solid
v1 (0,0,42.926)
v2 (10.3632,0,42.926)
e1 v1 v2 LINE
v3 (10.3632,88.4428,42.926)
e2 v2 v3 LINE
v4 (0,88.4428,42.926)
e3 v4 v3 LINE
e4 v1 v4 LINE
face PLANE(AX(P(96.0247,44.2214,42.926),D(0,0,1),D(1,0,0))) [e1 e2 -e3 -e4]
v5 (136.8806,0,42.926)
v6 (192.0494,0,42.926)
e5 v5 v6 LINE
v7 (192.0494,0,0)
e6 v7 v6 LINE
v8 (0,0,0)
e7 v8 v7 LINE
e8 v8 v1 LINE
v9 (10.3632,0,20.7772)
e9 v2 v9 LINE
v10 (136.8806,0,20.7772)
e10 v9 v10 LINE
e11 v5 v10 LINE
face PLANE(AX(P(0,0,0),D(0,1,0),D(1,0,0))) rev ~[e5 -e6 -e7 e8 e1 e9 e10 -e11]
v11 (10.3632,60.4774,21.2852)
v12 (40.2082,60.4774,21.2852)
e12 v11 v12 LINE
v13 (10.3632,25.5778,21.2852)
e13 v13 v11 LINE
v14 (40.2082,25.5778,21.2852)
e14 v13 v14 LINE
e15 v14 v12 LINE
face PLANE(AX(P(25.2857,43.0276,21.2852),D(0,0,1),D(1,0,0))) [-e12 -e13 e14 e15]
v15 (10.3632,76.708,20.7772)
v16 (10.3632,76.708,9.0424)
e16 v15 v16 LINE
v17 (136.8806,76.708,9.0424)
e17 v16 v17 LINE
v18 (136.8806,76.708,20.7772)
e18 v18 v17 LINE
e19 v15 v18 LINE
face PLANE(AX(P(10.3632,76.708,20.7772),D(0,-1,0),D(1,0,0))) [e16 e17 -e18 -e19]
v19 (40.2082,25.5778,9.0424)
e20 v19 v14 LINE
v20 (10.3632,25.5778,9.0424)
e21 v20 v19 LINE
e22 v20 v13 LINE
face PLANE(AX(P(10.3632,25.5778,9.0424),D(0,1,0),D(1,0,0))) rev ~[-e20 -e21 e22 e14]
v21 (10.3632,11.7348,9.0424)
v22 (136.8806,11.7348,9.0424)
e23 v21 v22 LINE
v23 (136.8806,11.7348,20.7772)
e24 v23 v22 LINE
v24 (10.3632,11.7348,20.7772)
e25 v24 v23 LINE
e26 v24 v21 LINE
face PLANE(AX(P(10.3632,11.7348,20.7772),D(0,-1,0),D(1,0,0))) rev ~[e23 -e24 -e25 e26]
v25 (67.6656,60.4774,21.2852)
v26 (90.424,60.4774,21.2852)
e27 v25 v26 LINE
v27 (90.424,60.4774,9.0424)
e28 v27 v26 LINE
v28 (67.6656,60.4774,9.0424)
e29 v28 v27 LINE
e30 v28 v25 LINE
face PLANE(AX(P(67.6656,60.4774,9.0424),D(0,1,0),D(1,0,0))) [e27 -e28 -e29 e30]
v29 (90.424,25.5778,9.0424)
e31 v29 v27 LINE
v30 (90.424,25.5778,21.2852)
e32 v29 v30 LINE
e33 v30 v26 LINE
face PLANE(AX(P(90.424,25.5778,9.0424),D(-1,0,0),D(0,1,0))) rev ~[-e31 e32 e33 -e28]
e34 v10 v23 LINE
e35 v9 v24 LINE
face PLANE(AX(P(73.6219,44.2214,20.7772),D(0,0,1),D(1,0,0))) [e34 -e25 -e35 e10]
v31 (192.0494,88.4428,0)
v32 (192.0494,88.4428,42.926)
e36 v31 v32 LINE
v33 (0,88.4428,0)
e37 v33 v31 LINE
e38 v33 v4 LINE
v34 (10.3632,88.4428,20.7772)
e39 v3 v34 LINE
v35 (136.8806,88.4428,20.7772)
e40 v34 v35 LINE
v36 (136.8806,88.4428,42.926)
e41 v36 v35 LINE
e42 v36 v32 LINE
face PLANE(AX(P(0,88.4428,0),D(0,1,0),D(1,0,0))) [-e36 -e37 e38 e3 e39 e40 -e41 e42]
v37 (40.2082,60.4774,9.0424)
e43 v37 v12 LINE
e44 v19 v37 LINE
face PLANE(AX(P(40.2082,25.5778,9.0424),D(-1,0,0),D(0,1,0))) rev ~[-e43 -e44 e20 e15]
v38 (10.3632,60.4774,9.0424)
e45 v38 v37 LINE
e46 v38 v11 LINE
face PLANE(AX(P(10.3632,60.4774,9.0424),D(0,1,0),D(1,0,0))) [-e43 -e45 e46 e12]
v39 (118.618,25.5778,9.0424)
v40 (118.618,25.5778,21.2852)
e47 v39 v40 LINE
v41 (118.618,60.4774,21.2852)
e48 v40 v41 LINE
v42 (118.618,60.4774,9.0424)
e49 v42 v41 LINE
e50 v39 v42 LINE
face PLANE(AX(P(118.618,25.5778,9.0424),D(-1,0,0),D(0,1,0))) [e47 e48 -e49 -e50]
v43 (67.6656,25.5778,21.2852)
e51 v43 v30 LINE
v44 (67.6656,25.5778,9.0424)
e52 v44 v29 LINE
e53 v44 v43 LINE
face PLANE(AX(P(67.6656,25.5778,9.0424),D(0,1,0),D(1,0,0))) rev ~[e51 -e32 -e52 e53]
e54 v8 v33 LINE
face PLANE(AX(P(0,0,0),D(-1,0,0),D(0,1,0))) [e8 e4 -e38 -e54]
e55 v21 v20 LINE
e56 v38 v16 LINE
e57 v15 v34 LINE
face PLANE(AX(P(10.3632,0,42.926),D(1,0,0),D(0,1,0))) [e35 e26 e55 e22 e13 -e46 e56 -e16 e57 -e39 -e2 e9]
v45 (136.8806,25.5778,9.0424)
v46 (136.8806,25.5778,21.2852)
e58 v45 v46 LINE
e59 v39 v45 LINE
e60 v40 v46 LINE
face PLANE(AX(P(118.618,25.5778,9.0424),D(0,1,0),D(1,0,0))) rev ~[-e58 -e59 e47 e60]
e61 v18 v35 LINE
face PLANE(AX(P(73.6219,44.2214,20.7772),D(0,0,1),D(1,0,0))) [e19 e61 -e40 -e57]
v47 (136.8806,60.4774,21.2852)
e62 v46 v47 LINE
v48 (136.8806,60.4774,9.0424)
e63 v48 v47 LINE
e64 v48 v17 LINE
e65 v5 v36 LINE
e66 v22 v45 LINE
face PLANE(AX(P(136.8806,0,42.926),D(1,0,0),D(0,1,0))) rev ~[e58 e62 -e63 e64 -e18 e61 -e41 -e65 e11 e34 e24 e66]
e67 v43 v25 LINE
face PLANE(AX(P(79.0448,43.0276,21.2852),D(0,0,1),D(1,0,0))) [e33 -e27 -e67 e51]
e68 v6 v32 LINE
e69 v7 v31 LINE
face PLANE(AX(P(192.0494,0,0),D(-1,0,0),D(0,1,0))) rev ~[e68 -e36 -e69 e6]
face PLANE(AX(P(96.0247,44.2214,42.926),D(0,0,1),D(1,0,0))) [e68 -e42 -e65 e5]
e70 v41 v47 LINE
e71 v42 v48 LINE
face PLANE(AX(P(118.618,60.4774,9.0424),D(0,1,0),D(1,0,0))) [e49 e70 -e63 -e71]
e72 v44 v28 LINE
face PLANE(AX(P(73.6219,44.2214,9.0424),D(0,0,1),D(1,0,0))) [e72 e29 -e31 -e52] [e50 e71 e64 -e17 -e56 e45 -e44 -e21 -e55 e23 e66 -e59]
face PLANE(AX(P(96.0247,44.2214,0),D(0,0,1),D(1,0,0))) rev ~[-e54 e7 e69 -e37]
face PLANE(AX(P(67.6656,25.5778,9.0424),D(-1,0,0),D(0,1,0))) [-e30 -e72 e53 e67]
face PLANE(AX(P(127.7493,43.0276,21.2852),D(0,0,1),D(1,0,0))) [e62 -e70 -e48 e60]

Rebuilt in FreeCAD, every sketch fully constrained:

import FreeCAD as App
import Part
import Sketcher
from FreeCAD import Vector
Q = App.Units.Quantity

doc = App.newDocument("Part")
params = doc.addObject("Spreadsheet::Sheet", "Params")
for row, (alias, value) in enumerate([
    ("sketch1_width", "7.561 in"),
    ("sketch1_height", "3.482 in"),
    ("pad1_length", "1.69 in"),
    ("sketch2_width", "4.981 in"),
    ("sketch2_height", "3.482 in"),
    ("pocket1_length", "0.872 in"),
    ("sketch3_width", "4.981 in"),
    ("sketch3_height", "2.558 in"),
    ("pocket2_length", "0.462 in"),
    ("sketch4_width", "1.175 in"),
    ("sketch4_width2", "0.896 in"),
    ("sketch4_width3", "0.719 in"),
    ("sketch4_height", "1.374 in"),
    ("pad2_length", "0.482 in"),
], start=1):
    params.set(f"A{row}", alias)
    params.set(f"B{row}", "=" + value)
    params.setAlias(f"B{row}", alias)

body = doc.addObject("PartDesign::Body", "Body")

sketch1 = body.newObject("Sketcher::SketchObject", "Sketch")
sketch1.AttachmentSupport = (doc.getObject("XY_Plane"), [""])
sketch1.MapMode = "FlatFace"
sketch1.addGeometry(Part.LineSegment(Vector(0, 88, 0), Vector(0, 0, 0)), False)
sketch1.addGeometry(Part.LineSegment(Vector(0, 0, 0), Vector(192, 0, 0)), False)
sketch1.addGeometry(Part.LineSegment(Vector(192, 0, 0), Vector(192, 88, 0)), False)
sketch1.addGeometry(Part.LineSegment(Vector(192, 88, 0), Vector(0, 88, 0)), False)
sketch1.addConstraint(Sketcher.Constraint("Coincident", 0, 2, 1, 1))
sketch1.addConstraint(Sketcher.Constraint("Coincident", 1, 2, 2, 1))
sketch1.addConstraint(Sketcher.Constraint("Coincident", 2, 2, 3, 1))
sketch1.addConstraint(Sketcher.Constraint("Coincident", 3, 2, 0, 1))
sketch1.addConstraint(Sketcher.Constraint("Vertical", 0))
sketch1.addConstraint(Sketcher.Constraint("Horizontal", 1))
sketch1.addConstraint(Sketcher.Constraint("Vertical", 2))
sketch1.addConstraint(Sketcher.Constraint("Horizontal", 3))
sketch1.addConstraint(Sketcher.Constraint("Coincident", 0, 2, -1, 1))
sketch1.addConstraint(Sketcher.Constraint("DistanceX", 1, 1, 1, 2, Q("7.561 in")))
sketch1.addConstraint(Sketcher.Constraint("DistanceY", 0, 2, 0, 1, Q("3.482 in")))
sketch1.setExpression("Constraints[9]", "Params.sketch1_width")
sketch1.setExpression("Constraints[10]", "Params.sketch1_height")
pad1 = body.newObject("PartDesign::Pad", "Pad")
pad1.Profile = sketch1
pad1.setExpression("Length", "Params.pad1_length")

sketch2 = body.newObject("Sketcher::SketchObject", "Sketch001")
sketch2.AttachmentSupport = (doc.getObject("XY_Plane"), [""])
sketch2.MapMode = "FlatFace"
sketch2.AttachmentOffset = App.Placement(Vector(0, 0, 1.69 * 25.4), App.Rotation())
sketch2.addGeometry(Part.LineSegment(Vector(10, 88, 0), Vector(10, 0, 0)), False)
sketch2.addGeometry(Part.LineSegment(Vector(10, 0, 0), Vector(137, 0, 0)), False)
sketch2.addGeometry(Part.LineSegment(Vector(137, 0, 0), Vector(137, 88, 0)), False)
sketch2.addGeometry(Part.LineSegment(Vector(137, 88, 0), Vector(10, 88, 0)), False)
sketch2.addConstraint(Sketcher.Constraint("Coincident", 0, 2, 1, 1))
sketch2.addConstraint(Sketcher.Constraint("Coincident", 1, 2, 2, 1))
sketch2.addConstraint(Sketcher.Constraint("Coincident", 2, 2, 3, 1))
sketch2.addConstraint(Sketcher.Constraint("Coincident", 3, 2, 0, 1))
sketch2.addConstraint(Sketcher.Constraint("Vertical", 0))
sketch2.addConstraint(Sketcher.Constraint("Horizontal", 1))
sketch2.addConstraint(Sketcher.Constraint("Vertical", 2))
sketch2.addConstraint(Sketcher.Constraint("Horizontal", 3))
sketch2.addConstraint(Sketcher.Constraint("PointOnObject", 0, 2, -1))
sketch2.addConstraint(Sketcher.Constraint("DistanceX", 1, 1, 1, 2, Q("4.981 in")))
sketch2.addConstraint(Sketcher.Constraint("DistanceY", 0, 2, 0, 1, Q("3.482 in")))
sketch2.addConstraint(Sketcher.Constraint("DistanceX", -1, 1, 0, 2, Q("0.408 in")))
sketch2.setExpression("Constraints[9]", "Params.sketch2_width")
sketch2.setExpression("Constraints[10]", "Params.sketch2_height")
pocket1 = body.newObject("PartDesign::Pocket", "Pocket")
pocket1.Profile = sketch2
pocket1.setExpression("Length", "Params.pocket1_length")

sketch3 = body.newObject("Sketcher::SketchObject", "Sketch002")
sketch3.AttachmentSupport = (doc.getObject("XY_Plane"), [""])
sketch3.MapMode = "FlatFace"
sketch3.AttachmentOffset = App.Placement(Vector(0, 0, 0.818 * 25.4), App.Rotation())
sketch3.addGeometry(Part.LineSegment(Vector(10, 77, 0), Vector(10, 12, 0)), False)
sketch3.addGeometry(Part.LineSegment(Vector(10, 12, 0), Vector(137, 12, 0)), False)
sketch3.addGeometry(Part.LineSegment(Vector(137, 12, 0), Vector(137, 77, 0)), False)
sketch3.addGeometry(Part.LineSegment(Vector(137, 77, 0), Vector(10, 77, 0)), False)
sketch3.addConstraint(Sketcher.Constraint("Coincident", 0, 2, 1, 1))
sketch3.addConstraint(Sketcher.Constraint("Coincident", 1, 2, 2, 1))
sketch3.addConstraint(Sketcher.Constraint("Coincident", 2, 2, 3, 1))
sketch3.addConstraint(Sketcher.Constraint("Coincident", 3, 2, 0, 1))
sketch3.addConstraint(Sketcher.Constraint("Vertical", 0))
sketch3.addConstraint(Sketcher.Constraint("Horizontal", 1))
sketch3.addConstraint(Sketcher.Constraint("Vertical", 2))
sketch3.addConstraint(Sketcher.Constraint("Horizontal", 3))
sketch3.addConstraint(Sketcher.Constraint("DistanceX", 1, 1, 1, 2, Q("4.981 in")))
sketch3.addConstraint(Sketcher.Constraint("DistanceY", 0, 2, 0, 1, Q("2.558 in")))
sketch3.addConstraint(Sketcher.Constraint("DistanceY", -1, 1, 2, 2, Q("3.02 in")))
sketch3.addConstraint(Sketcher.Constraint("DistanceX", -1, 1, 0, 2, Q("0.408 in")))
sketch3.setExpression("Constraints[8]", "Params.sketch3_width")
sketch3.setExpression("Constraints[9]", "Params.sketch3_height")
pocket2 = body.newObject("PartDesign::Pocket", "Pocket001")
pocket2.Profile = sketch3
pocket2.setExpression("Length", "Params.pocket2_length")

sketch4 = body.newObject("Sketcher::SketchObject", "Sketch003")
sketch4.AttachmentSupport = (doc.getObject("XY_Plane"), [""])
sketch4.MapMode = "FlatFace"
sketch4.AttachmentOffset = App.Placement(Vector(0, 0, 0.356 * 25.4), App.Rotation())
sketch4.addGeometry(Part.LineSegment(Vector(10, 60, 0), Vector(10, 26, 0)), False)
sketch4.addGeometry(Part.LineSegment(Vector(10, 26, 0), Vector(40, 26, 0)), False)
sketch4.addGeometry(Part.LineSegment(Vector(40, 26, 0), Vector(40, 60, 0)), False)
sketch4.addGeometry(Part.LineSegment(Vector(40, 60, 0), Vector(10, 60, 0)), False)
sketch4.addGeometry(Part.LineSegment(Vector(68, 60, 0), Vector(68, 26, 0)), False)
sketch4.addGeometry(Part.LineSegment(Vector(68, 26, 0), Vector(90, 26, 0)), False)
sketch4.addGeometry(Part.LineSegment(Vector(90, 26, 0), Vector(90, 60, 0)), False)
sketch4.addGeometry(Part.LineSegment(Vector(90, 60, 0), Vector(68, 60, 0)), False)
sketch4.addGeometry(Part.LineSegment(Vector(119, 60, 0), Vector(119, 26, 0)), False)
sketch4.addGeometry(Part.LineSegment(Vector(119, 26, 0), Vector(137, 26, 0)), False)
sketch4.addGeometry(Part.LineSegment(Vector(137, 26, 0), Vector(137, 60, 0)), False)
sketch4.addGeometry(Part.LineSegment(Vector(137, 60, 0), Vector(119, 60, 0)), False)
sketch4.addConstraint(Sketcher.Constraint("Coincident", 0, 2, 1, 1))
sketch4.addConstraint(Sketcher.Constraint("Coincident", 1, 2, 2, 1))
sketch4.addConstraint(Sketcher.Constraint("Coincident", 2, 2, 3, 1))
sketch4.addConstraint(Sketcher.Constraint("Coincident", 3, 2, 0, 1))
sketch4.addConstraint(Sketcher.Constraint("Coincident", 4, 2, 5, 1))
sketch4.addConstraint(Sketcher.Constraint("Coincident", 5, 2, 6, 1))
sketch4.addConstraint(Sketcher.Constraint("Coincident", 6, 2, 7, 1))
sketch4.addConstraint(Sketcher.Constraint("Coincident", 7, 2, 4, 1))
sketch4.addConstraint(Sketcher.Constraint("Coincident", 8, 2, 9, 1))
sketch4.addConstraint(Sketcher.Constraint("Coincident", 9, 2, 10, 1))
sketch4.addConstraint(Sketcher.Constraint("Coincident", 10, 2, 11, 1))
sketch4.addConstraint(Sketcher.Constraint("Coincident", 11, 2, 8, 1))
sketch4.addConstraint(Sketcher.Constraint("Vertical", 0))
sketch4.addConstraint(Sketcher.Constraint("Horizontal", 1))
sketch4.addConstraint(Sketcher.Constraint("Vertical", 2))
sketch4.addConstraint(Sketcher.Constraint("Horizontal", 3))
sketch4.addConstraint(Sketcher.Constraint("Vertical", 4))
sketch4.addConstraint(Sketcher.Constraint("Horizontal", 5))
sketch4.addConstraint(Sketcher.Constraint("Vertical", 6))
sketch4.addConstraint(Sketcher.Constraint("Horizontal", 7))
sketch4.addConstraint(Sketcher.Constraint("Vertical", 8))
sketch4.addConstraint(Sketcher.Constraint("Horizontal", 9))
sketch4.addConstraint(Sketcher.Constraint("Vertical", 10))
sketch4.addConstraint(Sketcher.Constraint("Horizontal", 11))
sketch4.addConstraint(Sketcher.Constraint("Horizontal", 1, 2, 4, 2))
sketch4.addConstraint(Sketcher.Constraint("Horizontal", 3, 2, 6, 2))
sketch4.addConstraint(Sketcher.Constraint("Horizontal", 5, 2, 8, 2))
sketch4.addConstraint(Sketcher.Constraint("Horizontal", 7, 2, 10, 2))
sketch4.addConstraint(Sketcher.Constraint("DistanceX", 1, 1, 1, 2, Q("1.175 in")))
sketch4.addConstraint(Sketcher.Constraint("DistanceX", 5, 1, 5, 2, Q("0.896 in")))
sketch4.addConstraint(Sketcher.Constraint("DistanceX", 9, 1, 9, 2, Q("0.719 in")))
sketch4.addConstraint(Sketcher.Constraint("DistanceY", 0, 2, 0, 1, Q("1.374 in")))
sketch4.addConstraint(Sketcher.Constraint("DistanceX", -1, 1, 5, 2, Q("3.56 in")))
sketch4.addConstraint(Sketcher.Constraint("DistanceX", -1, 1, 8, 2, Q("4.67 in")))
sketch4.addConstraint(Sketcher.Constraint("DistanceX", -1, 1, 0, 2, Q("0.408 in")))
sketch4.addConstraint(Sketcher.Constraint("DistanceY", -1, 1, 0, 2, Q("1.007 in")))
sketch4.setExpression("Constraints[28]", "Params.sketch4_width")
sketch4.setExpression("Constraints[29]", "Params.sketch4_width2")
sketch4.setExpression("Constraints[30]", "Params.sketch4_width3")
sketch4.setExpression("Constraints[31]", "Params.sketch4_height")
pad2 = body.newObject("PartDesign::Pad", "Pad001")
pad2.Profile = sketch4
pad2.setExpression("Length", "Params.pad2_length")

doc.recompute()
